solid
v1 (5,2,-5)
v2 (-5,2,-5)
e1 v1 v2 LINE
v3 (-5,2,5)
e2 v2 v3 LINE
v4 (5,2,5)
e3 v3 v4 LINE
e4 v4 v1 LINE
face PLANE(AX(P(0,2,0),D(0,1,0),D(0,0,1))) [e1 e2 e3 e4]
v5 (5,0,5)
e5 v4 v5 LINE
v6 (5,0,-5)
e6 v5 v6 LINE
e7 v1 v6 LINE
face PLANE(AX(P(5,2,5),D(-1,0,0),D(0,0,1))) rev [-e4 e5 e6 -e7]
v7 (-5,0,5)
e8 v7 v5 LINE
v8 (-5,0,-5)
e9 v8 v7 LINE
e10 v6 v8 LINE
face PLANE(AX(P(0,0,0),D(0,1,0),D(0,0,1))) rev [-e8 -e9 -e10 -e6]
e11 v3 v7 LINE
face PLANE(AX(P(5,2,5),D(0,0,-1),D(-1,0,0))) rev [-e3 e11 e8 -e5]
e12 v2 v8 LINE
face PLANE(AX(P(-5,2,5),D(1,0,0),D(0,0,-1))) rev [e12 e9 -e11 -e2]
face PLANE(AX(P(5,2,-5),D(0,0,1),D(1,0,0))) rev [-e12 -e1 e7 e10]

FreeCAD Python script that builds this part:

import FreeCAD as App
import Part
import Sketcher

V = App.Vector
Q = App.Units.Quantity

doc = App.newDocument("Part")
params = doc.addObject("Spreadsheet::Sheet", "Params")
for row, (alias, value) in enumerate([
    ("sketch1_width", "10 mm"),
    ("pad1_length", "2 mm"),
], start=1):
    params.set(f"A{row}", alias)
    params.set(f"B{row}", "=" + value)
    params.setAlias(f"B{row}", alias)

body = doc.addObject("PartDesign::Body", "Body")

sketch1 = doc.addObject("Sketcher::SketchObject", "Sketch")
body.addObject(sketch1)
sketch1.AttachmentSupport = (doc.XZ_Plane, [""])
sketch1.MapMode = "FlatFace"
sketch1.addGeometry([
    Part.LineSegment(V(-5, -5, 0), V(-5, 5, 0)),
    Part.LineSegment(V(-5, 5, 0), V(5, 5, 0)),
    Part.LineSegment(V(5, 5, 0), V(5, -5, 0)),
    Part.LineSegment(V(5, -5, 0), V(-5, -5, 0)),
], False)
sketch1.addConstraint([
    Sketcher.Constraint("Coincident", 0, 2, 1, 1),
    Sketcher.Constraint("Coincident", 1, 2, 2, 1),
    Sketcher.Constraint("Coincident", 2, 2, 3, 1),
    Sketcher.Constraint("Coincident", 3, 2, 0, 1),
    Sketcher.Constraint("Vertical", 0),
    Sketcher.Constraint("Horizontal", 1),
    Sketcher.Constraint("Vertical", 2),
    Sketcher.Constraint("Horizontal", 3),
    Sketcher.Constraint("Symmetric", 0, 2, 2, 2, -1, 1),
    Sketcher.Constraint("Equal", 3, 0),
    Sketcher.Constraint("DistanceX", 1, 1, 1, 2, Q("10 mm")),
])
sketch1.setExpression("Constraints[10]", "Params.sketch1_width")
pad1 = doc.addObject("PartDesign::Pad", "Pad")
body.addObject(pad1)
pad1.Profile = sketch1
pad1.setExpression("Length", "Params.pad1_length")
pad1.Reversed = True

doc.recompute()
